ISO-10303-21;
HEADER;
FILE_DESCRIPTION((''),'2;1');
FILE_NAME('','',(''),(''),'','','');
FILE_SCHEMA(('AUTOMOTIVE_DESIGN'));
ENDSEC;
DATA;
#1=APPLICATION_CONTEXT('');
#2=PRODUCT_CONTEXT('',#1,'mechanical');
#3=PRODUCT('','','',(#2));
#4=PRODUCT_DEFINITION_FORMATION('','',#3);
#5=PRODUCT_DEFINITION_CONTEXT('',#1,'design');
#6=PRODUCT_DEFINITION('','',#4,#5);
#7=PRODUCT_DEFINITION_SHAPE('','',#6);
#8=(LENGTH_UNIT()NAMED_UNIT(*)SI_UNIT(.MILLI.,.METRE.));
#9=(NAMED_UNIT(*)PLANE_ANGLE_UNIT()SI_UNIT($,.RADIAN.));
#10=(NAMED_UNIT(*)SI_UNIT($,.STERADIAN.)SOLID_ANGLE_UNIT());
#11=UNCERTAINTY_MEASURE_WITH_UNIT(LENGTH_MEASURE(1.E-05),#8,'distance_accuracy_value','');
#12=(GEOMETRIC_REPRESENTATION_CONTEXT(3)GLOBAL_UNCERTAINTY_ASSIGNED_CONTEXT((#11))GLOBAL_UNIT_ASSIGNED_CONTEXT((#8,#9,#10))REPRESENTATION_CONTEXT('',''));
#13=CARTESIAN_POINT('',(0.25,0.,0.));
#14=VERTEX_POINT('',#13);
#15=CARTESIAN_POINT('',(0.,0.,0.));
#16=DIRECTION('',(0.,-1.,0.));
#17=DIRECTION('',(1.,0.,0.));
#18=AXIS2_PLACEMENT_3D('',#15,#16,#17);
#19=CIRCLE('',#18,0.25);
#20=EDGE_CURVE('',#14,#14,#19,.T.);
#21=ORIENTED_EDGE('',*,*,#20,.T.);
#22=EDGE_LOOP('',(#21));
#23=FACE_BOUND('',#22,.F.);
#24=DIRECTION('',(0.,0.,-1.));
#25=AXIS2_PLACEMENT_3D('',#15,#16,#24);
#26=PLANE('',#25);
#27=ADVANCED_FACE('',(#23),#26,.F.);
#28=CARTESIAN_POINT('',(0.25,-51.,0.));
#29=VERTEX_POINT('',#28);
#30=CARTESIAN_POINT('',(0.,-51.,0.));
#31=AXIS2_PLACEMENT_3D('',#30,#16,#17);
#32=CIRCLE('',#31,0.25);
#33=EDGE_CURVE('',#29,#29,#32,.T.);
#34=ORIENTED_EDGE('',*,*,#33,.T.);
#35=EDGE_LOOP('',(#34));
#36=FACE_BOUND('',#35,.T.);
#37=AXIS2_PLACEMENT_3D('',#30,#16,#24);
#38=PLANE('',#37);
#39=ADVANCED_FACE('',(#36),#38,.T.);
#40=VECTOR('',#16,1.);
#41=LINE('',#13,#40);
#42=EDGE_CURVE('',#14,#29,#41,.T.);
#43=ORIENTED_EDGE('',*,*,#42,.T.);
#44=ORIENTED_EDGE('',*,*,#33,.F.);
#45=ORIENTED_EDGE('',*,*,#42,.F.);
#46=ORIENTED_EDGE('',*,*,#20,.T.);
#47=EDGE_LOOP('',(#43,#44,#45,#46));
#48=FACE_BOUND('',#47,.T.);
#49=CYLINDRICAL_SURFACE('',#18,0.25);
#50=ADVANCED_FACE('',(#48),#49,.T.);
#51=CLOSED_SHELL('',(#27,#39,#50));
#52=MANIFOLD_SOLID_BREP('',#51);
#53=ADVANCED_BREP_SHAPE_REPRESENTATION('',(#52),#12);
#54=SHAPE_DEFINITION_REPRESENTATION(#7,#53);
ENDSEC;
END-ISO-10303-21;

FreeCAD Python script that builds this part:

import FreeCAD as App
import Part
import Sketcher

V = App.Vector

doc = App.newDocument("Part")
body = doc.addObject("PartDesign::Body", "Body")

# Sketch on XZ plane
sketch1 = body.newObject("Sketcher::SketchObject", "Sketch")
sketch1.AttachmentSupport = (doc.getObject("XZ_Plane"), [""])
sketch1.MapMode = "FlatFace"
sketch1.addGeometry(Part.Circle(V(0, 0, 0), V(0, 0, 1), 0.25), False)
sketch1.addConstraint(Sketcher.Constraint("Coincident", 0, 3, -1, 1))
sketch1.addConstraint(Sketcher.Constraint("Diameter", 0, 0.5))

# Sketch on XY plane
sketch2 = body.newObject("Sketcher::SketchObject", "Sketch001")
sketch2.AttachmentSupport = (doc.getObject("XY_Plane"), [""])
sketch2.MapMode = "FlatFace"
sketch2.addGeometry(Part.LineSegment(V(0, 0, 0), V(0, -51, 0)), False)
sketch2.addConstraint(Sketcher.Constraint("Vertical", 0))
sketch2.addConstraint(Sketcher.Constraint("Coincident", 0, 1, -1, 1))
sketch2.addConstraint(Sketcher.Constraint("DistanceY", 0, 2, 0, 1, 51.0))
doc.recompute()

additivepipe = body.newObject("PartDesign::AdditivePipe", "AdditivePipe")
additivepipe.Profile = sketch1
additivepipe.Spine = (sketch2, ["Edge1"])

doc.recompute()
